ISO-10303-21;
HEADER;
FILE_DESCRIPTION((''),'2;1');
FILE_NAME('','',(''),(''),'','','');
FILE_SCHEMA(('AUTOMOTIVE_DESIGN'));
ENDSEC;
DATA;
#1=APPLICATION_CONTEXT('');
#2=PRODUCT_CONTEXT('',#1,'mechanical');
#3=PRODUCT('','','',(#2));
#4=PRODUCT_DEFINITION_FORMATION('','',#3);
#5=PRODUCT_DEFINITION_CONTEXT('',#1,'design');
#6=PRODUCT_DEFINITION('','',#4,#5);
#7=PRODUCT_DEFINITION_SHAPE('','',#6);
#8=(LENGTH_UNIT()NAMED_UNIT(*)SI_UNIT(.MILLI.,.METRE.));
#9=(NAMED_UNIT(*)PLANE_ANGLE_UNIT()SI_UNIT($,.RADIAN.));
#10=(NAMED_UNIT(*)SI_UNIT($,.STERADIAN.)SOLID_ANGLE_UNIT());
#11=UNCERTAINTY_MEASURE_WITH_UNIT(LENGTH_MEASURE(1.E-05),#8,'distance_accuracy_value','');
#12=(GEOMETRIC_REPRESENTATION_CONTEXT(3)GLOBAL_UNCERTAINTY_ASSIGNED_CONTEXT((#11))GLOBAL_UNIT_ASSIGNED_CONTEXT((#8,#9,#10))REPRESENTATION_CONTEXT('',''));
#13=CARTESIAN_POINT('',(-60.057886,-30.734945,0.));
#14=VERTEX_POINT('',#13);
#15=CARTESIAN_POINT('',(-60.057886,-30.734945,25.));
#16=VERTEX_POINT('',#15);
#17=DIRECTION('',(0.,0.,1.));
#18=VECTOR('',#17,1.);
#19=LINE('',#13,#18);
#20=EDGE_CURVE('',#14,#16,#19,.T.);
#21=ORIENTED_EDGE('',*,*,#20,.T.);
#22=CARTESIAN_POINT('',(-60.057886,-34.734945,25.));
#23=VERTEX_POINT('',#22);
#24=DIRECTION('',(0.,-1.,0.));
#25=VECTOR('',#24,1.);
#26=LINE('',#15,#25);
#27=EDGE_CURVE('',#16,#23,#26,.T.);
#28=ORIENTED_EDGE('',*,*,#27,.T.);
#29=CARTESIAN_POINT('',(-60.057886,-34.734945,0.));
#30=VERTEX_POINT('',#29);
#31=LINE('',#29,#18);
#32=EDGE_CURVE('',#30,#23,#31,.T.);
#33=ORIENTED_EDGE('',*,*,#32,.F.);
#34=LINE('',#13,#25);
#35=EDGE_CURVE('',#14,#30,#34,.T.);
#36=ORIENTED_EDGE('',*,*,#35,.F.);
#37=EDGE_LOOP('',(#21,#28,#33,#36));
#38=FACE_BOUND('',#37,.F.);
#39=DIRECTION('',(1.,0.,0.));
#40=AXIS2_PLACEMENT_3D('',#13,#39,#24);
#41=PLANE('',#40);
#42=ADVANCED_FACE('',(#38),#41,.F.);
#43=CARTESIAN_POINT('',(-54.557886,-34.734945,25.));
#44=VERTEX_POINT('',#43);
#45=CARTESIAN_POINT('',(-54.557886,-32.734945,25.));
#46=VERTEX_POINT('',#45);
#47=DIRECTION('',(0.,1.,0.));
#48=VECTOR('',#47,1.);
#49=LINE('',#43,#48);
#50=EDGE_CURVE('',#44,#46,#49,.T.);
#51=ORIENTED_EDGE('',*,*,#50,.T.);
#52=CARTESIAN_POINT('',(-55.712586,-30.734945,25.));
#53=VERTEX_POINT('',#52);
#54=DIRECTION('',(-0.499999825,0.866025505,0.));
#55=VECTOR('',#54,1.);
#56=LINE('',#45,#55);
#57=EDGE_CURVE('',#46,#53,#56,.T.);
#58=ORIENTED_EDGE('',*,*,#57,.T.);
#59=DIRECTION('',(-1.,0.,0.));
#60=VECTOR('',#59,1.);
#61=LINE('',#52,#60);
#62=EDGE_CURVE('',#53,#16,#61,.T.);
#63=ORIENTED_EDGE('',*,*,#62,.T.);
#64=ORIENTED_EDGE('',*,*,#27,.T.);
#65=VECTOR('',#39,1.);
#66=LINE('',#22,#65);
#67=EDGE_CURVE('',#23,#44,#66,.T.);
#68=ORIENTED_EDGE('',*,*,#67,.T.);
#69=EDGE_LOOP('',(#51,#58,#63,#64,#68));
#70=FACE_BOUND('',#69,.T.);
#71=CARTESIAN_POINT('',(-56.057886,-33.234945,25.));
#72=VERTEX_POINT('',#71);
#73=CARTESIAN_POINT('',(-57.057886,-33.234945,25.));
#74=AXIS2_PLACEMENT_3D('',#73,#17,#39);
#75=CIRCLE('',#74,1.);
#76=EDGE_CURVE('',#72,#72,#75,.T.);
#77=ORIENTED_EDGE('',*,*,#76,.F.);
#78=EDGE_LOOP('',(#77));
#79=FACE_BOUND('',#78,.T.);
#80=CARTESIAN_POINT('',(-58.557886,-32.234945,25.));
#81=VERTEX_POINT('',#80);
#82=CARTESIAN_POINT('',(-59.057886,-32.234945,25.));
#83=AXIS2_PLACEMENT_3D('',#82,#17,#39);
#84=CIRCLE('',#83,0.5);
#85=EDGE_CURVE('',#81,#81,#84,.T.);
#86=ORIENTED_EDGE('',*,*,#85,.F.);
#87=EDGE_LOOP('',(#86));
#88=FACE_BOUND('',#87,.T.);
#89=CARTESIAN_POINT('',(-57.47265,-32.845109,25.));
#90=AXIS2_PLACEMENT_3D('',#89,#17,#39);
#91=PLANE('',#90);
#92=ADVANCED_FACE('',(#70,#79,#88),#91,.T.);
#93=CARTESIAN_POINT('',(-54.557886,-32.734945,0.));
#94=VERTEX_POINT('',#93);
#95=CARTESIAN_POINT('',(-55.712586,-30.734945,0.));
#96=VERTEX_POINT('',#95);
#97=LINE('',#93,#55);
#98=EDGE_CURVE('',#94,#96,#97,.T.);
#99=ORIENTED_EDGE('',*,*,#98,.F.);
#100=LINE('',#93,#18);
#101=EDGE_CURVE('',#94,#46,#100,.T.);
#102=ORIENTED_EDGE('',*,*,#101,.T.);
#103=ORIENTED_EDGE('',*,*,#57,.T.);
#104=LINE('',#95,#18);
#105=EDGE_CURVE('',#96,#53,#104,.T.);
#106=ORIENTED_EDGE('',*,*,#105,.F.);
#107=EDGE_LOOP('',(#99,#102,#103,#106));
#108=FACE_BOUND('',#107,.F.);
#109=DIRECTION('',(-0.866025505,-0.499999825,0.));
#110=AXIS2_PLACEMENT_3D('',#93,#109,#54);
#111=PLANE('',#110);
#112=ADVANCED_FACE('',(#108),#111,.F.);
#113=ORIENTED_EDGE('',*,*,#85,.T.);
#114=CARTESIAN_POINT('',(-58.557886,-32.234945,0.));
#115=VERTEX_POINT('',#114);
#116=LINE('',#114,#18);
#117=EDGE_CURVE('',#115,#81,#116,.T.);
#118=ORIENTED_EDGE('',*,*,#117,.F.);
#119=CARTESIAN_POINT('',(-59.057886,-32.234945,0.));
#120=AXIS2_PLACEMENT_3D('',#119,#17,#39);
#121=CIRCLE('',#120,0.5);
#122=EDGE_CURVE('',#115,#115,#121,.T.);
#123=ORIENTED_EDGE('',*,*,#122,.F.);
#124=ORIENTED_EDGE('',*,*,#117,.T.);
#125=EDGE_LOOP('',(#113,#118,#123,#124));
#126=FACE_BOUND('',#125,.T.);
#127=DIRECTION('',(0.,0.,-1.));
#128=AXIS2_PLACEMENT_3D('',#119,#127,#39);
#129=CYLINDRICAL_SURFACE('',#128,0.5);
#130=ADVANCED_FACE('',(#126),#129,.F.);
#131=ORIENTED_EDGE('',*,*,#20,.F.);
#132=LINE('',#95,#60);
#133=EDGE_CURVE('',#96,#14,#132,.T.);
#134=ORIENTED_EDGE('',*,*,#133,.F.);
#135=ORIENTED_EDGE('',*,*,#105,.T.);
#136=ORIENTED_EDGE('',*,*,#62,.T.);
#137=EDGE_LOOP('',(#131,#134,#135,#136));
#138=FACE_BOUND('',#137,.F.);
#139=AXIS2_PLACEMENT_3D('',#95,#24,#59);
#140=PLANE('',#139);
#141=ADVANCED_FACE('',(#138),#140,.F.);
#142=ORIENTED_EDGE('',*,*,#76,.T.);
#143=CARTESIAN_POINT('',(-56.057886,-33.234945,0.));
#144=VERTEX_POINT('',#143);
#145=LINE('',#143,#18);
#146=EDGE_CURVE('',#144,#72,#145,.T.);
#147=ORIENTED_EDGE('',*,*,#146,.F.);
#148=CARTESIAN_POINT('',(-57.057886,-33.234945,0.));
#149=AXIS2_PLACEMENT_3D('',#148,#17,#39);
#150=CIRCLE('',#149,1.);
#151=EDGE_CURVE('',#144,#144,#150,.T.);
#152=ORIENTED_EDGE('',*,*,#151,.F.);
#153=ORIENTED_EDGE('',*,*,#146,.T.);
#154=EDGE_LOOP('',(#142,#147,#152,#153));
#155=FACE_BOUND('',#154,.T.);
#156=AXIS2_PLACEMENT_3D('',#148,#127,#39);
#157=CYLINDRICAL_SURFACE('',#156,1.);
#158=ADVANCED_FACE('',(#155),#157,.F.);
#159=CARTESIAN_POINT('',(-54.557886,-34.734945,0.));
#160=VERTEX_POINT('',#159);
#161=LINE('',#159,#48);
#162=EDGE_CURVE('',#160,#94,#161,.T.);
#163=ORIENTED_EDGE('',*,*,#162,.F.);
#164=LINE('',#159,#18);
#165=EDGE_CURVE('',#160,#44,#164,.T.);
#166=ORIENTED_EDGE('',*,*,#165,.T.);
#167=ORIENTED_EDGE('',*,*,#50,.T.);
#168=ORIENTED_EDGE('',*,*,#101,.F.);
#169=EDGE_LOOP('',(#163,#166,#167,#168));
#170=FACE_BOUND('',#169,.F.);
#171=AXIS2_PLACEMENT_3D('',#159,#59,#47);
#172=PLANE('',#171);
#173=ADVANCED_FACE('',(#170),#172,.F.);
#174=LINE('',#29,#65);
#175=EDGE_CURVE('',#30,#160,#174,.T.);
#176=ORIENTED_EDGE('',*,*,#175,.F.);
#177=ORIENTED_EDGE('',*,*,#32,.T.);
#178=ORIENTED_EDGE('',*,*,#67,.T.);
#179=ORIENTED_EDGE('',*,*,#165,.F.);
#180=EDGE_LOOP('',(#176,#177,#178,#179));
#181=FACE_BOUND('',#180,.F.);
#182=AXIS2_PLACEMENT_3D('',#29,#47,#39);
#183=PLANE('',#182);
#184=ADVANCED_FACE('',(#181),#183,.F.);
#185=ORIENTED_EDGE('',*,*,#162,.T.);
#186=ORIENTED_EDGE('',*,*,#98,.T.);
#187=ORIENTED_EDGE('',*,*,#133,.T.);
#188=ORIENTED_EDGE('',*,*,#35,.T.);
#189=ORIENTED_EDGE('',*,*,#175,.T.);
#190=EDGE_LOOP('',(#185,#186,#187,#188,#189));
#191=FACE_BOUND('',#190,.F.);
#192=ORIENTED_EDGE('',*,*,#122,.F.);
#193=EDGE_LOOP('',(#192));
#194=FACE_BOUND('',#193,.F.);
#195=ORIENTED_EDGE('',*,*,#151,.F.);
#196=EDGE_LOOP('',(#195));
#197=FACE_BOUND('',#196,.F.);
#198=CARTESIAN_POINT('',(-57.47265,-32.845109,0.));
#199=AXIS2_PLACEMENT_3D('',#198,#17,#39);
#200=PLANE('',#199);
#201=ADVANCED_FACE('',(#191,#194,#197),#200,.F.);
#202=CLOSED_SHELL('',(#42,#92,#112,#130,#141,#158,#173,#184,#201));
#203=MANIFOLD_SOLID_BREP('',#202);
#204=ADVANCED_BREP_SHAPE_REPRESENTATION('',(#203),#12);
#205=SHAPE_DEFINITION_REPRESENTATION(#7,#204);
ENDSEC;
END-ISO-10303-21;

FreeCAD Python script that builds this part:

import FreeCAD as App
import Part
import Sketcher

V = App.Vector
Q = App.Units.Quantity


def add_polygon(sketch, points):
    """Adds a closed chain of lines whose ends are joined by coincident constraints."""
    first, n = sketch.GeometryCount, len(points)
    for a, b in zip(points, points[1:] + points[:1]):
        sketch.addGeometry(Part.LineSegment(App.Vector(*a, 0), App.Vector(*b, 0)), False)
    for i in range(n):
        sketch.addConstraint(Sketcher.Constraint("Coincident", first + i, 2, first + (i + 1) % n, 1))

doc = App.newDocument("Part")
body = doc.addObject("PartDesign::Body", "Body")

# Sketch on XY plane
sketch1 = doc.addObject("Sketcher::SketchObject", "Sketch")
body.addObject(sketch1)
sketch1.AttachmentSupport = (doc.XY_Plane, [""])
sketch1.MapMode = "FlatFace"
add_polygon(sketch1, [(-60.1, -34.7), (-54.6, -34.7), (-54.6, -32.7), (-55.7, -30.7), (-60.1, -30.7)])  # lines 0-4
sketch1.addGeometry(Part.Circle(V(-57.1, -33.2, 0), V(0, 0, 1), 1), False)  # 5
sketch1.addGeometry(Part.Circle(V(-59.1, -32.2, 0), V(0, 0, 1), 0.5), False)  # 6
sketch1.addConstraint(Sketcher.Constraint("Horizontal", 0))
sketch1.addConstraint(Sketcher.Constraint("Vertical", 1))
sketch1.addConstraint(Sketcher.Constraint("Horizontal", 3))
sketch1.addConstraint(Sketcher.Constraint("Vertical", 4))
sketch1.addConstraint(Sketcher.Constraint("Diameter", 5, Q("2 mm")))
sketch1.addConstraint(Sketcher.Constraint("Diameter", 6, Q("1 mm")))
sketch1.addConstraint(Sketcher.Constraint("DistanceY", 1, 1, 1, 2, Q("2 mm")))
sketch1.addConstraint(Sketcher.Constraint("DistanceY", 4, 2, 4, 1, Q("4 mm")))
sketch1.addConstraint(Sketcher.Constraint("Angle", 2, Q("119.999988 deg")))
sketch1.addConstraint(Sketcher.Constraint("DistanceX", 0, 1, 0, 2, Q("5.5 mm")))
sketch1.addConstraint(Sketcher.Constraint("DistanceX", 6, 3, 5, 3, Q("2 mm")))
sketch1.addConstraint(Sketcher.Constraint("DistanceY", 5, 3, 6, 3, Q("1 mm")))
sketch1.addConstraint(Sketcher.Constraint("DistanceX", 3, 2, 6, 3, Q("1 mm")))
sketch1.addConstraint(Sketcher.Constraint("DistanceY", 0, 2, 5, 3, Q("1.5 mm")))
sketch1.addConstraint(Sketcher.Constraint("DistanceX", 5, 3, -1, 1, Q("57.057886 mm")))
sketch1.addConstraint(Sketcher.Constraint("DistanceY", 5, 3, -1, 1, Q("33.234945 mm")))
pad1 = doc.addObject("PartDesign::Pad", "Pad")
body.addObject(pad1)
pad1.Profile = sketch1
pad1.Length = 25

doc.recompute()
